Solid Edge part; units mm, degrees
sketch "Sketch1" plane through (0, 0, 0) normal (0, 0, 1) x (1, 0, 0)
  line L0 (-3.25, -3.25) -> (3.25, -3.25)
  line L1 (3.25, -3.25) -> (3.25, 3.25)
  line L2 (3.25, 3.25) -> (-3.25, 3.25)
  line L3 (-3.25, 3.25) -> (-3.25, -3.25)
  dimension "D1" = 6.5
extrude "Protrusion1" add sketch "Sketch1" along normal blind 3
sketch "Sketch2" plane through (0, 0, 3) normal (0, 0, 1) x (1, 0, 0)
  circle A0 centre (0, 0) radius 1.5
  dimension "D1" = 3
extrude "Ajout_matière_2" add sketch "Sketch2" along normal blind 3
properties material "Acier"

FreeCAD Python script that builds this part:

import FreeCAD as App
import Part
import Sketcher


def add_polygon(sketch, points):
    """Adds a closed chain of lines whose ends are joined by coincident constraints."""
    first, n = sketch.GeometryCount, len(points)
    for a, b in zip(points, points[1:] + points[:1]):
        sketch.addGeometry(Part.LineSegment(App.Vector(*a, 0), App.Vector(*b, 0)), False)
    for i in range(n):
        sketch.addConstraint(Sketcher.Constraint("Coincident", first + i, 2, first + (i + 1) % n, 1))

doc = App.newDocument("Part")
body = doc.addObject("PartDesign::Body", "Body")

sketch1 = body.newObject("Sketcher::SketchObject", "Sketch")
sketch1.AttachmentSupport = (doc.getObject("XY_Plane"), [""])
sketch1.MapMode = "FlatFace"
add_polygon(sketch1, [(-3.25, 3.25), (-3.25, -3.25), (3.25, -3.25), (3.25, 3.25)])
sketch1.addConstraint(Sketcher.Constraint("Vertical", 0))
sketch1.addConstraint(Sketcher.Constraint("Horizontal", 1))
sketch1.addConstraint(Sketcher.Constraint("Vertical", 2))
sketch1.addConstraint(Sketcher.Constraint("Horizontal", 3))
sketch1.addConstraint(Sketcher.Constraint("Symmetric", 0, 2, 2, 2, -1, 1))
sketch1.addConstraint(Sketcher.Constraint("Equal", 3, 0))
sketch1.addConstraint(Sketcher.Constraint("DistanceX", 0, 2, -1, 1, 3.25))
pad1 = body.newObject("PartDesign::Pad", "Pad")
pad1.Profile = sketch1
pad1.Length = 3

sketch2 = body.newObject("Sketcher::SketchObject", "Sketch001")
sketch2.AttachmentSupport = (doc.getObject("XY_Plane"), [""])
sketch2.MapMode = "FlatFace"
sketch2.AttachmentOffset = App.Placement(App.Vector(0, 0, 3), App.Rotation())
sketch2.addGeometry(Part.Circle(App.Vector(0, 0, 0), App.Vector(0, 0, 1), 1.5), False)
sketch2.addConstraint(Sketcher.Constraint("Coincident", 0, 3, -1, 1))
sketch2.addConstraint(Sketcher.Constraint("Diameter", 0, 3.0))
pad2 = body.newObject("PartDesign::Pad", "Pad001")
pad2.Profile = sketch2
pad2.Length = 3

doc.recompute()
